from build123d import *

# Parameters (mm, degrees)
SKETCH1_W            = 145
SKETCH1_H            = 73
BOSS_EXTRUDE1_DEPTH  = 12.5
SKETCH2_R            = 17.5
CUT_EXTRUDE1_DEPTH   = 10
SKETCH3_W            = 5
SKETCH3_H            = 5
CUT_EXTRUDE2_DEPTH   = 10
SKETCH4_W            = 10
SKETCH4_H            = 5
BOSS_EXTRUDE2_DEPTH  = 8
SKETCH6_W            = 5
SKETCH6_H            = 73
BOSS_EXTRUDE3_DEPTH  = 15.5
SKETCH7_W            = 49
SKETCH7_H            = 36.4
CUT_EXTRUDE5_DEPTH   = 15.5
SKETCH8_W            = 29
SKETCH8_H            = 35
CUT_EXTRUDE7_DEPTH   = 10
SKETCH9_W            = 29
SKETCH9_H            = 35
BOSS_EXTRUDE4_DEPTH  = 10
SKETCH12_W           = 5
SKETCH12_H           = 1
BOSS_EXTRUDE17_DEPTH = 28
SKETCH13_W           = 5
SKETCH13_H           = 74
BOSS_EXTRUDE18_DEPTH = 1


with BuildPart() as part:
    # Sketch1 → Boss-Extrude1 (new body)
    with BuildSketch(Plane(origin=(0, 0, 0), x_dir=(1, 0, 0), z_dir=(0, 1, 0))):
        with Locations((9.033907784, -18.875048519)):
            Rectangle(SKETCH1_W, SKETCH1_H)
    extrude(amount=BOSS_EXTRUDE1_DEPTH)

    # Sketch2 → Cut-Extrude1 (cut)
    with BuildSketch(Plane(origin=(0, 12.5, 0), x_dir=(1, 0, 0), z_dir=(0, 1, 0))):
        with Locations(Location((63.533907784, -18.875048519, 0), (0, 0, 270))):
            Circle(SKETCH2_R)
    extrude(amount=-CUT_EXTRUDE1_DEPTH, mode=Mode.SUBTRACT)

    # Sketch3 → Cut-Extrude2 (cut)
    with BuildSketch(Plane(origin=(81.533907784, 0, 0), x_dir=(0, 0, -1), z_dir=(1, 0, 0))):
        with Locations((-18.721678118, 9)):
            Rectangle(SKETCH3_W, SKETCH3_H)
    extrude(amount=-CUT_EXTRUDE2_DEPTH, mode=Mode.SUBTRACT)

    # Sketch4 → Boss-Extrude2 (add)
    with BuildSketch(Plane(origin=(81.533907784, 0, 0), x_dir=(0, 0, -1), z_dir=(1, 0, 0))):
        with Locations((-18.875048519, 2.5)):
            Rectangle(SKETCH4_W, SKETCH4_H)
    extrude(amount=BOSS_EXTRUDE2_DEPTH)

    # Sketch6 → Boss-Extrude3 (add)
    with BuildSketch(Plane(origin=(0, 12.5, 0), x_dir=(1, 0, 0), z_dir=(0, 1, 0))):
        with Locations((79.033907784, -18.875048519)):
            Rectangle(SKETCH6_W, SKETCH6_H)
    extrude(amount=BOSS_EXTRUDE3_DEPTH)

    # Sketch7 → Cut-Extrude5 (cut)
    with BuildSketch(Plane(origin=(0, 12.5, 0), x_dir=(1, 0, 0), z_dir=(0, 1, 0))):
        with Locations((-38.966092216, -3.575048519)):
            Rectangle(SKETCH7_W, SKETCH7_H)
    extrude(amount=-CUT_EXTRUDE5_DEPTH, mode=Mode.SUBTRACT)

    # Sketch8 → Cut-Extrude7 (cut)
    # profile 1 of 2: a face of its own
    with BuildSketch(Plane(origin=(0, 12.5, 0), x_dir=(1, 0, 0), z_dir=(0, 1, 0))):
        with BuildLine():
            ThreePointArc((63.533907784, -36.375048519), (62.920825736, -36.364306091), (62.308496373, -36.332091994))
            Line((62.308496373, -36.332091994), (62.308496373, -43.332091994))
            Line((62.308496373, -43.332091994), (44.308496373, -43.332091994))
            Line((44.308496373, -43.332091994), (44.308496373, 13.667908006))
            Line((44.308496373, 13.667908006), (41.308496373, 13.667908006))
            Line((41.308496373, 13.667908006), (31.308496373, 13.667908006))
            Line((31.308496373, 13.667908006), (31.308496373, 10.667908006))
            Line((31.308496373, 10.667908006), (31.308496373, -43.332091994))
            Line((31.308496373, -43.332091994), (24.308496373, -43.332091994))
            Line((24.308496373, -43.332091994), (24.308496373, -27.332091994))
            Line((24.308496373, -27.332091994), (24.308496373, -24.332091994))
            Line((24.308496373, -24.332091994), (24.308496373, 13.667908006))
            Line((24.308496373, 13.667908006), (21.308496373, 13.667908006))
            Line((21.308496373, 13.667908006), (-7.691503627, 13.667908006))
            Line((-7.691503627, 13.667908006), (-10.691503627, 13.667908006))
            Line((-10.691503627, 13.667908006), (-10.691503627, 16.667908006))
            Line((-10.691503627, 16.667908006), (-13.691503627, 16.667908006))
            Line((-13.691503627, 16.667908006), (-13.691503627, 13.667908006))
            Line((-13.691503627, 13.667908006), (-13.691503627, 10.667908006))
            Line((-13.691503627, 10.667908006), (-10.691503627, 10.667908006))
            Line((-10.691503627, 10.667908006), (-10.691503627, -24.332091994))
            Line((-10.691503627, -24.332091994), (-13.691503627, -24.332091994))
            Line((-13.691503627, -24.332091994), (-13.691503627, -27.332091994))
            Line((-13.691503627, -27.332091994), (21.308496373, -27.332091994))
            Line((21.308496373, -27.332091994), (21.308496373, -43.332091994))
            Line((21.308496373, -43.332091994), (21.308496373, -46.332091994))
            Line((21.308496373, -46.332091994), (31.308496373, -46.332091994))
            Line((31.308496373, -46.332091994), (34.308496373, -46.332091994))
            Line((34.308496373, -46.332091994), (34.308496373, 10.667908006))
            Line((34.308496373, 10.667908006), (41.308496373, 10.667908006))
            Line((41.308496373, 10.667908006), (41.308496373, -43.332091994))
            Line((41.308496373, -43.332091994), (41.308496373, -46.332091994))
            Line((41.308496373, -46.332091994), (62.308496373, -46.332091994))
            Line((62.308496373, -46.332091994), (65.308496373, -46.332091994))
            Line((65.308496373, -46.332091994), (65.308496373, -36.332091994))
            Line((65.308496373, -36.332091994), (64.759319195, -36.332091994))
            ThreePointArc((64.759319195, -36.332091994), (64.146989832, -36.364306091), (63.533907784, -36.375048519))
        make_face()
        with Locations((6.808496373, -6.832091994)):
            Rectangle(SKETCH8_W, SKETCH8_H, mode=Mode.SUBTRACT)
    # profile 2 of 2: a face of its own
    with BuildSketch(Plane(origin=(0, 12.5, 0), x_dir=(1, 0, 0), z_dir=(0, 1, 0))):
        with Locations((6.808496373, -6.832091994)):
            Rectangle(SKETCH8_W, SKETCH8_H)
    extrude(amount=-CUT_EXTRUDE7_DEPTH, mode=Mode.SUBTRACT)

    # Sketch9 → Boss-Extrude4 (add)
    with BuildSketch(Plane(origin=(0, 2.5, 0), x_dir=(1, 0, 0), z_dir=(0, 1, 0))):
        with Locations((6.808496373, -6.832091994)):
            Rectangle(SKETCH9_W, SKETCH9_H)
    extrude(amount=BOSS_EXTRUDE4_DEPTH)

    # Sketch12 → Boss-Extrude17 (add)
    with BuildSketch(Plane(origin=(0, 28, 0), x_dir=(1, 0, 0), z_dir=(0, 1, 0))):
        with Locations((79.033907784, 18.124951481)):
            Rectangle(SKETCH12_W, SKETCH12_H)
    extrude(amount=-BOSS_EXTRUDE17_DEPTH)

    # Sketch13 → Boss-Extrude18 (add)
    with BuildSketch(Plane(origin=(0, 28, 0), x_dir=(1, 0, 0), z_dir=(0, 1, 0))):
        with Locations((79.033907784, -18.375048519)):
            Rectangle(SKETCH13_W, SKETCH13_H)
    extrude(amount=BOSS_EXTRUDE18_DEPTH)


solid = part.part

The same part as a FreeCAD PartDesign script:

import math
import FreeCAD as App
import Part
import Sketcher
from FreeCAD import Vector


def add_polygon(sketch, points):
    """Adds a closed chain of lines whose ends are joined by coincident constraints."""
    first, n = sketch.GeometryCount, len(points)
    for a, b in zip(points, points[1:] + points[:1]):
        sketch.addGeometry(Part.LineSegment(App.Vector(*a, 0), App.Vector(*b, 0)), False)
    for i in range(n):
        sketch.addConstraint(Sketcher.Constraint("Coincident", first + i, 2, first + (i + 1) % n, 1))

doc = App.newDocument("Part")
body = doc.addObject("PartDesign::Body", "Body")

# Sketch on XZ plane
sketch1 = body.newObject("Sketcher::SketchObject", "Sketch")
sketch1.AttachmentSupport = (doc.getObject("XZ_Plane"), [""])
sketch1.MapMode = "FlatFace"
add_polygon(sketch1, [(-63, -18), (-63, 55), (82, 55), (82, -18)])  # lines 0-3
sketch1.addConstraint(Sketcher.Constraint("Vertical", 0))
sketch1.addConstraint(Sketcher.Constraint("Horizontal", 1))
sketch1.addConstraint(Sketcher.Constraint("Vertical", 2))
sketch1.addConstraint(Sketcher.Constraint("Horizontal", 3))
sketch1.addConstraint(Sketcher.Constraint("DistanceX", 1, 1, 1, 2, 145.0))
sketch1.addConstraint(Sketcher.Constraint("DistanceY", 0, 1, 0, 2, 73.0))
sketch1.addConstraint(Sketcher.Constraint("DistanceY", -1, 1, 0, 2, 55.375049))
sketch1.addConstraint(Sketcher.Constraint("DistanceX", 0, 2, -1, 1, 63.466092))
pad1 = body.newObject("PartDesign::Pad", "Pad")
pad1.Profile = sketch1
pad1.Length = 12.5
pad1.Reversed = True

# Sketch on XZ plane
sketch2 = body.newObject("Sketcher::SketchObject", "Sketch001")
sketch2.AttachmentSupport = (doc.getObject("XZ_Plane"), [""])
sketch2.MapMode = "FlatFace"
sketch2.AttachmentOffset = App.Placement(Vector(0, 0, -12.5), App.Rotation())
sketch2.addGeometry(Part.Circle(Vector(64, 19, 0), Vector(0, 0, 1), 18), False)
sketch2.addConstraint(Sketcher.Constraint("Diameter", 0, 35.0))
sketch2.addConstraint(Sketcher.Constraint("DistanceY", -1, 1, 0, 3, 18.875049))
sketch2.addConstraint(Sketcher.Constraint("DistanceX", -1, 1, 0, 3, 63.533908))
pocket1 = body.newObject("PartDesign::Pocket", "Pocket")
pocket1.Profile = sketch2
pocket1.Length = 10
pocket1.Reversed = True

# Sketch on YZ plane
sketch3 = body.newObject("Sketcher::SketchObject", "Sketch002")
sketch3.AttachmentSupport = (doc.getObject("YZ_Plane"), [""])
sketch3.MapMode = "FlatFace"
sketch3.AttachmentOffset = App.Placement(Vector(0, 0, 81.533908), App.Rotation())
add_polygon(sketch3, [(12, 21), (6, 21), (6, 16), (12, 16)])  # lines 0-3
sketch3.addConstraint(Sketcher.Constraint("Horizontal", 0))
sketch3.addConstraint(Sketcher.Constraint("Vertical", 1))
sketch3.addConstraint(Sketcher.Constraint("Horizontal", 2))
sketch3.addConstraint(Sketcher.Constraint("Vertical", 3))
sketch3.addConstraint(Sketcher.Constraint("Equal", 2, 1))
sketch3.addConstraint(Sketcher.Constraint("DistanceX", 0, 2, 0, 1, 5.0))
sketch3.addConstraint(Sketcher.Constraint("DistanceX", -1, 1, 0, 2, 6.5))
sketch3.addConstraint(Sketcher.Constraint("DistanceY", -1, 1, 0, 2, 21.221678))
pocket2 = body.newObject("PartDesign::Pocket", "Pocket001")
pocket2.Profile = sketch3
pocket2.Length = 10

# Sketch on YZ plane
sketch4 = body.newObject("Sketcher::SketchObject", "Sketch003")
sketch4.AttachmentSupport = (doc.getObject("YZ_Plane"), [""])
sketch4.MapMode = "FlatFace"
sketch4.AttachmentOffset = App.Placement(Vector(0, 0, 81.533908), App.Rotation())
add_polygon(sketch4, [(5, 24), (0, 24), (0, 14), (5, 14)])  # lines 0-3
sketch4.addConstraint(Sketcher.Constraint("Horizontal", 0))
sketch4.addConstraint(Sketcher.Constraint("Vertical", 1))
sketch4.addConstraint(Sketcher.Constraint("Horizontal", 2))
sketch4.addConstraint(Sketcher.Constraint("Vertical", 3))
sketch4.addConstraint(Sketcher.Constraint("PointOnObject", 0, 2, -2))
sketch4.addConstraint(Sketcher.Constraint("DistanceX", 0, 2, 0, 1, 5.0))
sketch4.addConstraint(Sketcher.Constraint("DistanceY", 1, 2, 1, 1, 10.0))
sketch4.addConstraint(Sketcher.Constraint("DistanceY", -1, 1, 0, 2, 23.875049))
pad2 = body.newObject("PartDesign::Pad", "Pad001")
pad2.Profile = sketch4
pad2.Length = 8

# Sketch on XZ plane
sketch5 = body.newObject("Sketcher::SketchObject", "Sketch004")
sketch5.AttachmentSupport = (doc.getObject("XZ_Plane"), [""])
sketch5.MapMode = "FlatFace"
sketch5.AttachmentOffset = App.Placement(Vector(0, 0, -12.5), App.Rotation())
add_polygon(sketch5, [(77, -18), (77, 55), (82, 55), (82, -18)])  # lines 0-3
sketch5.addConstraint(Sketcher.Constraint("Vertical", 0))
sketch5.addConstraint(Sketcher.Constraint("Horizontal", 1))
sketch5.addConstraint(Sketcher.Constraint("Vertical", 2))
sketch5.addConstraint(Sketcher.Constraint("Horizontal", 3))
sketch5.addConstraint(Sketcher.Constraint("DistanceX", 1, 1, 1, 2, 5.0))
sketch5.addConstraint(Sketcher.Constraint("DistanceY", 0, 1, 0, 2, 73.0))
sketch5.addConstraint(Sketcher.Constraint("DistanceY", -1, 1, 0, 2, 55.375049))
sketch5.addConstraint(Sketcher.Constraint("DistanceX", -1, 1, 0, 2, 76.533908))
pad3 = body.newObject("PartDesign::Pad", "Pad002")
pad3.Profile = sketch5
pad3.Length = 15.5
pad3.Reversed = True

# Sketch on XZ plane
sketch6 = body.newObject("Sketcher::SketchObject", "Sketch005")
sketch6.AttachmentSupport = (doc.getObject("XZ_Plane"), [""])
sketch6.MapMode = "FlatFace"
sketch6.AttachmentOffset = App.Placement(Vector(0, 0, -12.5), App.Rotation())
add_polygon(sketch6, [(-63, -15), (-63, 22), (-14, 22), (-14, -15)])  # lines 0-3
sketch6.addConstraint(Sketcher.Constraint("Vertical", 0))
sketch6.addConstraint(Sketcher.Constraint("Horizontal", 1))
sketch6.addConstraint(Sketcher.Constraint("Vertical", 2))
sketch6.addConstraint(Sketcher.Constraint("Horizontal", 3))
sketch6.addConstraint(Sketcher.Constraint("DistanceX", 1, 1, 1, 2, 49.0))
sketch6.addConstraint(Sketcher.Constraint("DistanceY", 0, 1, 0, 2, 36.4))
sketch6.addConstraint(Sketcher.Constraint("DistanceY", -1, 1, 0, 2, 21.775049))
sketch6.addConstraint(Sketcher.Constraint("DistanceX", 0, 2, -1, 1, 63.466092))
pocket3 = body.newObject("PartDesign::Pocket", "Pocket002")
pocket3.Profile = sketch6
pocket3.Length = 15.5
pocket3.Reversed = True

# Sketch on XZ plane
sketch7 = body.newObject("Sketcher::SketchObject", "Sketch006")
sketch7.AttachmentSupport = (doc.getObject("XZ_Plane"), [""])
sketch7.MapMode = "FlatFace"
sketch7.AttachmentOffset = App.Placement(Vector(0, 0, -12.5), App.Rotation())
sketch7.addGeometry(Part.ArcOfCircle(Part.Circle(Vector(63.5, 18.9, 0), Vector(0, 0, 1), 17.5), math.radians(90), math.radians(94.02)), False)
sketch7.addGeometry(Part.LineSegment(Vector(62.3, 36.3, 0), Vector(62.3, 43.3, 0)), False)
sketch7.addGeometry(Part.LineSegment(Vector(62.3, 43.3, 0), Vector(44.3, 43.3, 0)), False)
sketch7.addGeometry(Part.LineSegment(Vector(44.3, 43.3, 0), Vector(44.3, -13.7, 0)), False)
sketch7.addGeometry(Part.LineSegment(Vector(44.3, -13.7, 0), Vector(31.3, -13.7, 0)), False)
sketch7.addGeometry(Part.LineSegment(Vector(31.3, -13.7, 0), Vector(31.3, 43.3, 0)), False)
sketch7.addGeometry(Part.LineSegment(Vector(31.3, 43.3, 0), Vector(24.3, 43.3, 0)), False)
sketch7.addGeometry(Part.LineSegment(Vector(24.3, 43.3, 0), Vector(24.3, -13.7, 0)), False)
sketch7.addGeometry(Part.LineSegment(Vector(24.3, -13.7, 0), Vector(-10.7, -13.7, 0)), False)
sketch7.addGeometry(Part.LineSegment(Vector(-10.7, -13.7, 0), Vector(-10.7, -16.7, 0)), False)
sketch7.addGeometry(Part.LineSegment(Vector(-10.7, -16.7, 0), Vector(-13.7, -16.7, 0)), False)
sketch7.addGeometry(Part.LineSegment(Vector(-13.7, -16.7, 0), Vector(-13.7, -10.7, 0)), False)
sketch7.addGeometry(Part.LineSegment(Vector(-13.7, -10.7, 0), Vector(-10.7, -10.7, 0)), False)
sketch7.addGeometry(Part.LineSegment(Vector(-10.7, -10.7, 0), Vector(-10.7, 24.3, 0)), False)
sketch7.addGeometry(Part.LineSegment(Vector(-10.7, 24.3, 0), Vector(-13.7, 24.3, 0)), False)
sketch7.addGeometry(Part.LineSegment(Vector(-13.7, 24.3, 0), Vector(-13.7, 27.3, 0)), False)
sketch7.addGeometry(Part.LineSegment(Vector(-13.7, 27.3, 0), Vector(21.3, 27.3, 0)), False)
sketch7.addGeometry(Part.LineSegment(Vector(21.3, 27.3, 0), Vector(21.3, 46.3, 0)), False)
sketch7.addGeometry(Part.LineSegment(Vector(21.3, 46.3, 0), Vector(34.3, 46.3, 0)), False)
sketch7.addGeometry(Part.LineSegment(Vector(34.3, 46.3, 0), Vector(34.3, -10.7, 0)), False)
sketch7.addGeometry(Part.LineSegment(Vector(34.3, -10.7, 0), Vector(41.3, -10.7, 0)), False)
sketch7.addGeometry(Part.LineSegment(Vector(41.3, -10.7, 0), Vector(41.3, 46.3, 0)), False)
sketch7.addGeometry(Part.LineSegment(Vector(41.3, 46.3, 0), Vector(65.3, 46.3, 0)), False)
sketch7.addGeometry(Part.LineSegment(Vector(65.3, 46.3, 0), Vector(65.3, 36.3, 0)), False)
sketch7.addGeometry(Part.LineSegment(Vector(65.3, 36.3, 0), Vector(64.8, 36.3, 0)), False)
sketch7.addGeometry(Part.ArcOfCircle(Part.Circle(Vector(63.5, 18.9, 0), Vector(0, 0, 1), 17.5), math.radians(85.98), math.radians(90)), False)
sketch7.addConstraint(Sketcher.Constraint("Coincident", 0, 2, 1, 1))
sketch7.addConstraint(Sketcher.Constraint("Coincident", 1, 2, 2, 1))
sketch7.addConstraint(Sketcher.Constraint("Coincident", 2, 2, 3, 1))
sketch7.addConstraint(Sketcher.Constraint("Coincident", 3, 2, 4, 1))
sketch7.addConstraint(Sketcher.Constraint("Coincident", 4, 2, 5, 1))
sketch7.addConstraint(Sketcher.Constraint("Coincident", 5, 2, 6, 1))
sketch7.addConstraint(Sketcher.Constraint("Coincident", 6, 2, 7, 1))
sketch7.addConstraint(Sketcher.Constraint("Coincident", 7, 2, 8, 1))
sketch7.addConstraint(Sketcher.Constraint("Coincident", 8, 2, 9, 1))
sketch7.addConstraint(Sketcher.Constraint("Coincident", 9, 2, 10, 1))
sketch7.addConstraint(Sketcher.Constraint("Coincident", 10, 2, 11, 1))
sketch7.addConstraint(Sketcher.Constraint("Coincident", 11, 2, 12, 1))
sketch7.addConstraint(Sketcher.Constraint("Coincident", 12, 2, 13, 1))
sketch7.addConstraint(Sketcher.Constraint("Coincident", 13, 2, 14, 1))
sketch7.addConstraint(Sketcher.Constraint("Coincident", 14, 2, 15, 1))
sketch7.addConstraint(Sketcher.Constraint("Coincident", 15, 2, 16, 1))
sketch7.addConstraint(Sketcher.Constraint("Coincident", 16, 2, 17, 1))
sketch7.addConstraint(Sketcher.Constraint("Coincident", 17, 2, 18, 1))
sketch7.addConstraint(Sketcher.Constraint("Coincident", 18, 2, 19, 1))
sketch7.addConstraint(Sketcher.Constraint("Coincident", 19, 2, 20, 1))
sketch7.addConstraint(Sketcher.Constraint("Coincident", 20, 2, 21, 1))
sketch7.addConstraint(Sketcher.Constraint("Coincident", 21, 2, 22, 1))
sketch7.addConstraint(Sketcher.Constraint("Coincident", 22, 2, 23, 1))
sketch7.addConstraint(Sketcher.Constraint("Coincident", 23, 2, 24, 1))
sketch7.addConstraint(Sketcher.Constraint("Coincident", 24, 2, 25, 1))
sketch7.addConstraint(Sketcher.Constraint("Tangent", 25, 2, 0, 1))
sketch7.addConstraint(Sketcher.Constraint("Vertical", 1))
sketch7.addConstraint(Sketcher.Constraint("Horizontal", 2))
sketch7.addConstraint(Sketcher.Constraint("Vertical", 3))
sketch7.addConstraint(Sketcher.Constraint("Horizontal", 4))
sketch7.addConstraint(Sketcher.Constraint("Vertical", 5))
sketch7.addConstraint(Sketcher.Constraint("Horizontal", 6))
sketch7.addConstraint(Sketcher.Constraint("Vertical", 7))
sketch7.addConstraint(Sketcher.Constraint("Horizontal", 8))
sketch7.addConstraint(Sketcher.Constraint("Vertical", 9))
sketch7.addConstraint(Sketcher.Constraint("Horizontal", 10))
sketch7.addConstraint(Sketcher.Constraint("Vertical", 11))
sketch7.addConstraint(Sketcher.Constraint("Horizontal", 12))
sketch7.addConstraint(Sketcher.Constraint("Vertical", 13))
sketch7.addConstraint(Sketcher.Constraint("Horizontal", 14))
sketch7.addConstraint(Sketcher.Constraint("Vertical", 15))
sketch7.addConstraint(Sketcher.Constraint("Horizontal", 16))
sketch7.addConstraint(Sketcher.Constraint("Vertical", 17))
sketch7.addConstraint(Sketcher.Constraint("Horizontal", 18))
sketch7.addConstraint(Sketcher.Constraint("Vertical", 19))
sketch7.addConstraint(Sketcher.Constraint("Horizontal", 20))
sketch7.addConstraint(Sketcher.Constraint("Vertical", 21))
sketch7.addConstraint(Sketcher.Constraint("Horizontal", 22))
sketch7.addConstraint(Sketcher.Constraint("Vertical", 23))
sketch7.addConstraint(Sketcher.Constraint("Horizontal", 24))
sketch7.addConstraint(Sketcher.Constraint("Equal", 0, 25))
sketch7.addConstraint(Sketcher.Constraint("Horizontal", 2, 2, 5, 2))
sketch7.addConstraint(Sketcher.Constraint("Horizontal", 4, 2, 7, 2))
sketch7.addConstraint(Sketcher.Constraint("Horizontal", 12, 2, 19, 2))
sketch7.addConstraint(Sketcher.Constraint("Horizontal", 18, 2, 21, 2))
sketch7.addConstraint(Sketcher.Constraint("Horizontal", 0, 2, 23, 2))
sketch7.addConstraint(Sketcher.Constraint("Vertical", 9, 2, 12, 2))
sketch7.addConstraint(Sketcher.Constraint("Vertical", 11, 2, 14, 2))
sketch7.addConstraint(Sketcher.Constraint("Vertical", 0, 3, 25, 2))
sketch7.addConstraint(Sketcher.Constraint("Equal", 8, 16))
sketch7.addConstraint(Sketcher.Constraint("Equal", 4, 18))
sketch7.addConstraint(Sketcher.Constraint("Equal", 6, 20))
sketch7.addConstraint(Sketcher.Constraint("Equal", 20, 1))
sketch7.addConstraint(Sketcher.Constraint("Equal", 14, 9))
sketch7.addConstraint(Sketcher.Constraint("Equal", 16, 13))
sketch7.addConstraint(Sketcher.Constraint("Equal", 9, 15))
sketch7.addConstraint(Sketcher.Constraint("Equal", 7, 19))
sketch7.addConstraint(Sketcher.Constraint("Radius", 0, 17.5))
sketch7.addConstraint(Sketcher.Constraint("DistanceX", 2, 2, 2, 1, 18.0))
sketch7.addConstraint(Sketcher.Constraint("DistanceX", 4, 2, 4, 1, 13.0))
sketch7.addConstraint(Sketcher.Constraint("DistanceX", 6, 2, 6, 1, 7.0))
sketch7.addConstraint(Sketcher.Constraint("DistanceX", 8, 2, 8, 1, 35.0))
sketch7.addConstraint(Sketcher.Constraint("DistanceX", 10, 2, 10, 1, 3.0))
sketch7.addConstraint(Sketcher.Constraint("DistanceX", 22, 1, 22, 2, 24.0))
sketch7.addConstraint(Sketcher.Constraint("DistanceY", 3, 2, 3, 1, 57.0))
sketch7.addConstraint(Sketcher.Constraint("DistanceY", 11, 1, 11, 2, 6.0))
sketch7.addConstraint(Sketcher.Constraint("DistanceX", 24, 2, 24, 1, 0.549177))
sketch7.addConstraint(Sketcher.Constraint("DistanceY", -1, 1, 0, 3, 18.875049))
sketch7.addConstraint(Sketcher.Constraint("DistanceX", -1, 1, 24, 2, 64.759319))
pocket4 = body.newObject("PartDesign::Pocket", "Pocket003")
pocket4.Profile = sketch7
pocket4.Length = 10
pocket4.Reversed = True

# Sketch on XZ plane
sketch8 = body.newObject("Sketcher::SketchObject", "Sketch007")
sketch8.AttachmentSupport = (doc.getObject("XZ_Plane"), [""])
sketch8.MapMode = "FlatFace"
sketch8.AttachmentOffset = App.Placement(Vector(0, 0, -2.5), App.Rotation())
add_polygon(sketch8, [(-8, -11), (-8, 24), (21, 24), (21, -11)])  # lines 0-3
sketch8.addConstraint(Sketcher.Constraint("Vertical", 0))
sketch8.addConstraint(Sketcher.Constraint("Horizontal", 1))
sketch8.addConstraint(Sketcher.Constraint("Vertical", 2))
sketch8.addConstraint(Sketcher.Constraint("Horizontal", 3))
sketch8.addConstraint(Sketcher.Constraint("DistanceX", 1, 1, 1, 2, 29.0))
sketch8.addConstraint(Sketcher.Constraint("DistanceY", 0, 1, 0, 2, 35.0))
sketch8.addConstraint(Sketcher.Constraint("DistanceY", -1, 1, 0, 2, 24.332092))
sketch8.addConstraint(Sketcher.Constraint("DistanceX", 0, 2, -1, 1, 7.691504))
pad4 = body.newObject("PartDesign::Pad", "Pad003")
pad4.Profile = sketch8
pad4.Length = 10
pad4.Reversed = True

# Sketch on XZ plane
sketch9 = body.newObject("Sketcher::SketchObject", "Sketch008")
sketch9.AttachmentSupport = (doc.getObject("XZ_Plane"), [""])
sketch9.MapMode = "FlatFace"
sketch9.AttachmentOffset = App.Placement(Vector(0, 0, -28), App.Rotation())
add_polygon(sketch9, [(76.5, -18.6), (76.5, -17.6), (81.5, -17.6), (81.5, -18.6)])  # lines 0-3
sketch9.addConstraint(Sketcher.Constraint("Vertical", 0))
sketch9.addConstraint(Sketcher.Constraint("Horizontal", 1))
sketch9.addConstraint(Sketcher.Constraint("Vertical", 2))
sketch9.addConstraint(Sketcher.Constraint("Horizontal", 3))
sketch9.addConstraint(Sketcher.Constraint("DistanceX", 1, 1, 1, 2, 5.0))
sketch9.addConstraint(Sketcher.Constraint("DistanceY", 0, 1, 0, 2, 1.0))
sketch9.addConstraint(Sketcher.Constraint("DistanceY", 0, 2, -1, 1, 17.624951))
sketch9.addConstraint(Sketcher.Constraint("DistanceX", -1, 1, 0, 2, 76.533908))
pad5 = body.newObject("PartDesign::Pad", "Pad004")
pad5.Profile = sketch9
pad5.Length = 28

# Sketch on XZ plane
sketch10 = body.newObject("Sketcher::SketchObject", "Sketch009")
sketch10.AttachmentSupport = (doc.getObject("XZ_Plane"), [""])
sketch10.MapMode = "FlatFace"
sketch10.AttachmentOffset = App.Placement(Vector(0, 0, -28), App.Rotation())
add_polygon(sketch10, [(77, -19), (77, 55), (82, 55), (82, -19)])  # lines 0-3
sketch10.addConstraint(Sketcher.Constraint("Vertical", 0))
sketch10.addConstraint(Sketcher.Constraint("Horizontal", 1))
sketch10.addConstraint(Sketcher.Constraint("Vertical", 2))
sketch10.addConstraint(Sketcher.Constraint("Horizontal", 3))
sketch10.addConstraint(Sketcher.Constraint("DistanceX", 1, 1, 1, 2, 5.0))
sketch10.addConstraint(Sketcher.Constraint("DistanceY", 0, 1, 0, 2, 74.0))
sketch10.addConstraint(Sketcher.Constraint("DistanceY", -1, 1, 0, 2, 55.375049))
sketch10.addConstraint(Sketcher.Constraint("DistanceX", -1, 1, 0, 2, 76.533908))
pad6 = body.newObject("PartDesign::Pad", "Pad005")
pad6.Profile = sketch10
pad6.Length = 1
pad6.Reversed = True

doc.recompute()
